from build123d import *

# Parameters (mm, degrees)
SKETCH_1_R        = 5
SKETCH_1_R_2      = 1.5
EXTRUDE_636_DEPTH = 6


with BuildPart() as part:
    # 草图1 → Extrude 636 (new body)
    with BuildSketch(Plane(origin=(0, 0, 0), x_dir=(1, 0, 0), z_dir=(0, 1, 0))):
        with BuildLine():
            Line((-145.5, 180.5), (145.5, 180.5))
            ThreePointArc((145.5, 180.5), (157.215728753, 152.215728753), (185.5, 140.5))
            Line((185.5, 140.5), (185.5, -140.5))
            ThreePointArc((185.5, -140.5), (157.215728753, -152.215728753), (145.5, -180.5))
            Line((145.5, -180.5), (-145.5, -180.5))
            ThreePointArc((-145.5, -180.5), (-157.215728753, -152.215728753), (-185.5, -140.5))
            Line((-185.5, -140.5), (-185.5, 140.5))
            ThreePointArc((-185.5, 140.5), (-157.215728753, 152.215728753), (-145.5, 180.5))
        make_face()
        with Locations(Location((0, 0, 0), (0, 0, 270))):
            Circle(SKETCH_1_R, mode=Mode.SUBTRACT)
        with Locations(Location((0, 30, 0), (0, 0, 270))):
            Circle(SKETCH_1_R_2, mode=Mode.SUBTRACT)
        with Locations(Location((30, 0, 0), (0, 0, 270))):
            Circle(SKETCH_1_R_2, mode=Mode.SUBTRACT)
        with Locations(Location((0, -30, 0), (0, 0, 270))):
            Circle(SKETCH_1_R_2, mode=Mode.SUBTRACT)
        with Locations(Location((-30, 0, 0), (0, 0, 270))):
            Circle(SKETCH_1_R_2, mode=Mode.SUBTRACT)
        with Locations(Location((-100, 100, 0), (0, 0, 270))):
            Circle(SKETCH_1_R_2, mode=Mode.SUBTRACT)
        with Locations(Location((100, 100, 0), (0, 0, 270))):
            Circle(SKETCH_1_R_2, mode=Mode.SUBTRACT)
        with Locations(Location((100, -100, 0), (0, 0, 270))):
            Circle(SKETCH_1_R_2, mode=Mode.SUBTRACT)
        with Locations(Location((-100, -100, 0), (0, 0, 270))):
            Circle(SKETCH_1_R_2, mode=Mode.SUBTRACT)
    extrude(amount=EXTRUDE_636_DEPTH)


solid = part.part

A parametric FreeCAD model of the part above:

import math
import FreeCAD as App
import Part
import Sketcher
Q = App.Units.Quantity

doc = App.newDocument("Part")
body = doc.addObject("PartDesign::Body", "Body")

sketch1 = body.newObject("Sketcher::SketchObject", "Sketch")
sketch1.AttachmentSupport = (doc.getObject("XZ_Plane"), [""])
sketch1.MapMode = "FlatFace"
sketch1.addGeometry(Part.LineSegment(App.Vector(145.5, -180.5, 0), App.Vector(-145.5, -180.5, 0)), False)
sketch1.addGeometry(Part.ArcOfCircle(Part.Circle(App.Vector(-185.5, -180.5, 0), App.Vector(0, 0, 1), 40), math.radians(0), math.radians(90)), False)
sketch1.addGeometry(Part.LineSegment(App.Vector(-185.5, -140.5, 0), App.Vector(-185.5, 140.5, 0)), False)
sketch1.addGeometry(Part.ArcOfCircle(Part.Circle(App.Vector(-185.5, 180.5, 0), App.Vector(0, 0, 1), 40), math.radians(-90), math.radians(0)), False)
sketch1.addGeometry(Part.LineSegment(App.Vector(-145.5, 180.5, 0), App.Vector(145.5, 180.5, 0)), False)
sketch1.addGeometry(Part.ArcOfCircle(Part.Circle(App.Vector(185.5, 180.5, 0), App.Vector(0, 0, 1), 40), math.radians(-180), math.radians(-90)), False)
sketch1.addGeometry(Part.LineSegment(App.Vector(185.5, 140.5, 0), App.Vector(185.5, -140.5, 0)), False)
sketch1.addGeometry(Part.ArcOfCircle(Part.Circle(App.Vector(185.5, -180.5, 0), App.Vector(0, 0, 1), 40), math.radians(90), math.radians(180)), False)
sketch1.addGeometry(Part.Circle(App.Vector(100, 100, 0), App.Vector(0, 0, 1), 1.5), False)
sketch1.addGeometry(Part.Circle(App.Vector(-100, 100, 0), App.Vector(0, 0, 1), 1.5), False)
sketch1.addGeometry(Part.Circle(App.Vector(0, 30, 0), App.Vector(0, 0, 1), 1.5), False)
sketch1.addGeometry(Part.Circle(App.Vector(30, 0, 0), App.Vector(0, 0, 1), 1.5), False)
sketch1.addGeometry(Part.Circle(App.Vector(100, -100, 0), App.Vector(0, 0, 1), 1.5), False)
sketch1.addGeometry(Part.Circle(App.Vector(0, 0, 0), App.Vector(0, 0, 1), 5), False)
sketch1.addGeometry(Part.Circle(App.Vector(-30, 0, 0), App.Vector(0, 0, 1), 1.5), False)
sketch1.addGeometry(Part.Circle(App.Vector(0, -30, 0), App.Vector(0, 0, 1), 1.5), False)
sketch1.addGeometry(Part.Circle(App.Vector(-100, -100, 0), App.Vector(0, 0, 1), 1.5), False)
sketch1.addConstraint(Sketcher.Constraint("Coincident", 0, 2, 1, 1))
sketch1.addConstraint(Sketcher.Constraint("Coincident", 1, 2, 2, 1))
sketch1.addConstraint(Sketcher.Constraint("Coincident", 2, 2, 3, 1))
sketch1.addConstraint(Sketcher.Constraint("Coincident", 3, 2, 4, 1))
sketch1.addConstraint(Sketcher.Constraint("Coincident", 4, 2, 5, 1))
sketch1.addConstraint(Sketcher.Constraint("Coincident", 5, 2, 6, 1))
sketch1.addConstraint(Sketcher.Constraint("Coincident", 6, 2, 7, 1))
sketch1.addConstraint(Sketcher.Constraint("Coincident", 7, 2, 0, 1))
sketch1.addConstraint(Sketcher.Constraint("Horizontal", 0))
sketch1.addConstraint(Sketcher.Constraint("Vertical", 2))
sketch1.addConstraint(Sketcher.Constraint("Horizontal", 4))
sketch1.addConstraint(Sketcher.Constraint("Vertical", 6))
sketch1.addConstraint(Sketcher.Constraint("Coincident", 13, 3, -1, 1))
sketch1.addConstraint(Sketcher.Constraint("Equal", 1, 3))
sketch1.addConstraint(Sketcher.Constraint("Equal", 3, 5))
sketch1.addConstraint(Sketcher.Constraint("Equal", 5, 7))
sketch1.addConstraint(Sketcher.Constraint("Equal", 8, 9))
sketch1.addConstraint(Sketcher.Constraint("Equal", 9, 10))
sketch1.addConstraint(Sketcher.Constraint("Equal", 10, 11))
sketch1.addConstraint(Sketcher.Constraint("Equal", 11, 12))
sketch1.addConstraint(Sketcher.Constraint("Equal", 12, 14))
sketch1.addConstraint(Sketcher.Constraint("Equal", 14, 15))
sketch1.addConstraint(Sketcher.Constraint("Equal", 15, 16))
sketch1.addConstraint(Sketcher.Constraint("Symmetric", 1, 3, 5, 3, -1, 1))
sketch1.addConstraint(Sketcher.Constraint("Symmetric", 3, 3, 7, 3, -1, 1))
sketch1.addConstraint(Sketcher.Constraint("Symmetric", 9, 3, 12, 3, -1, 1))
sketch1.addConstraint(Sketcher.Constraint("Symmetric", 11, 3, 14, 3, -1, 1))
sketch1.addConstraint(Sketcher.Constraint("Symmetric", 10, 3, 15, 3, -1, 1))
sketch1.addConstraint(Sketcher.Constraint("Symmetric", 8, 3, 16, 3, -1, 1))
sketch1.addConstraint(Sketcher.Constraint("Symmetric", 3, 3, 5, 3, -2))
sketch1.addConstraint(Sketcher.Constraint("Symmetric", 8, 3, 9, 3, -2))
sketch1.addConstraint(Sketcher.Constraint("PointOnObject", 10, 3, -2))
sketch1.addConstraint(Sketcher.Constraint("PointOnObject", 11, 3, -1))
sketch1.addConstraint(Sketcher.Constraint("Horizontal", 7, 3, 0, 2))
sketch1.addConstraint(Sketcher.Constraint("Horizontal", 5, 3, 3, 2))
sketch1.addConstraint(Sketcher.Constraint("Vertical", 3, 3, 1, 2))
sketch1.addConstraint(Sketcher.Constraint("Vertical", 7, 3, 5, 2))
sketch1.addConstraint(Sketcher.Constraint("Diameter", 8, Q("3 mm")))
sketch1.addConstraint(Sketcher.Constraint("Diameter", 13, Q("10 mm")))
sketch1.addConstraint(Sketcher.Constraint("Radius", 1, Q("40 mm")))
sketch1.addConstraint(Sketcher.Constraint("DistanceX", 0, 2, 0, 1, Q("291 mm")))
sketch1.addConstraint(Sketcher.Constraint("DistanceY", 2, 1, 2, 2, Q("281 mm")))
sketch1.addConstraint(Sketcher.Constraint("DistanceX", -1, 1, 8, 3, Q("100 mm")))
sketch1.addConstraint(Sketcher.Constraint("DistanceY", -1, 1, 8, 3, Q("100 mm")))
sketch1.addConstraint(Sketcher.Constraint("DistanceY", -1, 1, 10, 3, Q("30 mm")))
sketch1.addConstraint(Sketcher.Constraint("DistanceX", -1, 1, 11, 3, Q("30 mm")))
pad1 = body.newObject("PartDesign::Pad", "Pad")
pad1.Profile = sketch1
pad1.Length = 6
pad1.Reversed = True

doc.recompute()
